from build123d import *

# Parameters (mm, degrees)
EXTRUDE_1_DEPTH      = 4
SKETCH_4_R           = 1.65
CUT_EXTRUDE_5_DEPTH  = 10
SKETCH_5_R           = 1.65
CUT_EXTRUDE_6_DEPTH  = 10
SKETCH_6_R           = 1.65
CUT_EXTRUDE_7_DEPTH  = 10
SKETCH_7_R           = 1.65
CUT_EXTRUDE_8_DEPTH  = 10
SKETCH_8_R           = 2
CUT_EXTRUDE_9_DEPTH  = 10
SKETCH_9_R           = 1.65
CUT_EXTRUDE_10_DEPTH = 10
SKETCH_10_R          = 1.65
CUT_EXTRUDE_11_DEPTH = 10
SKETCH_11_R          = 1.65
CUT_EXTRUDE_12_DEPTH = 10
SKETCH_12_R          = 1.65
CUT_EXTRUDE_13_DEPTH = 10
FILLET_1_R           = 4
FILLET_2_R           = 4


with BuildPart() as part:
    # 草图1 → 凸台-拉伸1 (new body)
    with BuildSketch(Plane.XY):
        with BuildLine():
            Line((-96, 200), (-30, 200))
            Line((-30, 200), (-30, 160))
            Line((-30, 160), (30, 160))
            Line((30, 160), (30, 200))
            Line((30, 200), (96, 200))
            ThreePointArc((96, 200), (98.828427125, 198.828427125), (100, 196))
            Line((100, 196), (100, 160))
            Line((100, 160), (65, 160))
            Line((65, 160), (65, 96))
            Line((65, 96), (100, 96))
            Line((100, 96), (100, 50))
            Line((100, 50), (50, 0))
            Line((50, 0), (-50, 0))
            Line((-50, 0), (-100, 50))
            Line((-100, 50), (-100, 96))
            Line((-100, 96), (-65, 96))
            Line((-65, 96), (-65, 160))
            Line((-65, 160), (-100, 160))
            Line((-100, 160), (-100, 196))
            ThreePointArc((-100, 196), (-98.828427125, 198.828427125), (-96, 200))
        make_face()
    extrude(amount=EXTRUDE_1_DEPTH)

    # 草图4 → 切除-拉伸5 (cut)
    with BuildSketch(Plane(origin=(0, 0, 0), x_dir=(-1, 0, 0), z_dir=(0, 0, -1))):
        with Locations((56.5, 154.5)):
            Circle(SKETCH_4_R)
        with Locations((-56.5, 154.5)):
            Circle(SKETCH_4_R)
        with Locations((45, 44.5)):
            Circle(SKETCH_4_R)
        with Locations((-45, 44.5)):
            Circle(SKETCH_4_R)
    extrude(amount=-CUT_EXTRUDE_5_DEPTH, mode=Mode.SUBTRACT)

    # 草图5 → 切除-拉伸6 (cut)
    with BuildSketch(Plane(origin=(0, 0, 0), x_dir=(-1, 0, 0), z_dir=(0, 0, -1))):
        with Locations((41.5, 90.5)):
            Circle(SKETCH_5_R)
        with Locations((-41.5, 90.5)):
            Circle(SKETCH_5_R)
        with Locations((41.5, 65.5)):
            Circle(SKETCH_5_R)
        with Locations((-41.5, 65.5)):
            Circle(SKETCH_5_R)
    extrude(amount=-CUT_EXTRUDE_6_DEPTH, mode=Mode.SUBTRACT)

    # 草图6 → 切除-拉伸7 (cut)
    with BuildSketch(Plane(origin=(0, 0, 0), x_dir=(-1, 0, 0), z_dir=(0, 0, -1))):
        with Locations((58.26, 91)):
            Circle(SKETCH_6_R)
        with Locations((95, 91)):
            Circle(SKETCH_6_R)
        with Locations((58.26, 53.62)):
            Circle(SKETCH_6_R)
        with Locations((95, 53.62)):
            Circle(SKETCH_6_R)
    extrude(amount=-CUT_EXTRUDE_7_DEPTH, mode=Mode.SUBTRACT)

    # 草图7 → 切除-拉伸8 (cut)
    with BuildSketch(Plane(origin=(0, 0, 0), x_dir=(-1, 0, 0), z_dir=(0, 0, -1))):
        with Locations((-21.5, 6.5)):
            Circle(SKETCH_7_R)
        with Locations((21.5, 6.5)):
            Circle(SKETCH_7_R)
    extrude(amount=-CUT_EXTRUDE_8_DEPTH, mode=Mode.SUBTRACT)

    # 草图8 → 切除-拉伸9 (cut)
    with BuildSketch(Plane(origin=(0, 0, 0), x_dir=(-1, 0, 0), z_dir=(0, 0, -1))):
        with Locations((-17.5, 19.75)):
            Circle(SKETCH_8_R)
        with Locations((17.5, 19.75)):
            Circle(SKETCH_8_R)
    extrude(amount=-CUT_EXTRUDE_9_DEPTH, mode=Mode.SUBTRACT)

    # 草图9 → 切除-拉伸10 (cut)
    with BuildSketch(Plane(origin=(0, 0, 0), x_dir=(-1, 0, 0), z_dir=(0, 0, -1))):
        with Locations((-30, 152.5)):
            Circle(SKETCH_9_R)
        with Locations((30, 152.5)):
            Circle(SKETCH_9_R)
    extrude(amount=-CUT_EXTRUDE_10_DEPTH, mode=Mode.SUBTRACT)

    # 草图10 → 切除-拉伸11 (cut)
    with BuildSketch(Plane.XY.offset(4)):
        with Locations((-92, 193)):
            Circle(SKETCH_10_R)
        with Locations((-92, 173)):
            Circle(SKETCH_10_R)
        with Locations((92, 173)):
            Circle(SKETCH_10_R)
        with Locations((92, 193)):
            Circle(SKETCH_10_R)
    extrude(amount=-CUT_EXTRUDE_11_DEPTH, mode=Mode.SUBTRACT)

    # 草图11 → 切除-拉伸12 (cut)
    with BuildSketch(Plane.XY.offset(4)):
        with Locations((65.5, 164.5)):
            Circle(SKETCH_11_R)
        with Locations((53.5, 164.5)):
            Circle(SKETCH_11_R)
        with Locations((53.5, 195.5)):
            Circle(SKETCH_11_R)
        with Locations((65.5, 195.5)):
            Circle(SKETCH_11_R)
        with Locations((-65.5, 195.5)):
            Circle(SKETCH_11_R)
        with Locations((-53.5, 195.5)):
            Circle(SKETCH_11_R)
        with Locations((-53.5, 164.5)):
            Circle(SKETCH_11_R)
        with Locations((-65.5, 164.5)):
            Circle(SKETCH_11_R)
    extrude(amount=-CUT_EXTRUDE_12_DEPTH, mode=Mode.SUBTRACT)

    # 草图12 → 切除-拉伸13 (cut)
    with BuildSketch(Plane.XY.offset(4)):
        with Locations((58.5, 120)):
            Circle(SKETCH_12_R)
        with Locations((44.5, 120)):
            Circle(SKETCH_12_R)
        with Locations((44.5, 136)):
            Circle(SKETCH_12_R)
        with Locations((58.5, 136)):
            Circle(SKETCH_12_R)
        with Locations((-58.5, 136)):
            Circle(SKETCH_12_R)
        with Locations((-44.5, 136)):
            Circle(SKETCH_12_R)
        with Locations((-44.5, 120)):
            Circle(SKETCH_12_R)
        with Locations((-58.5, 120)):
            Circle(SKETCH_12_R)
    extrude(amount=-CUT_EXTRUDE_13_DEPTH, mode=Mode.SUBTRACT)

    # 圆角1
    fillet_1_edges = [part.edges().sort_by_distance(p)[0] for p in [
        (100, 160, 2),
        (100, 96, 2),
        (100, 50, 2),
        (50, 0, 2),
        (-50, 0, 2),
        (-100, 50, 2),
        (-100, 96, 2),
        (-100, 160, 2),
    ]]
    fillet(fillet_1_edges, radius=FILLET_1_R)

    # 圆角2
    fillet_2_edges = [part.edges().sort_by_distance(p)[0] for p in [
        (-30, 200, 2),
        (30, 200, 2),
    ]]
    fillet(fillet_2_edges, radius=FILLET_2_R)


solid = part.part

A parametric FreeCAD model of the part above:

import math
import FreeCAD as App
import Part
import Sketcher
from FreeCAD import Vector


def edges_at(feature, points):
    """Names of the edges that pass closest to the given points."""
    edges = feature.Shape.Edges
    near = lambda p: min(range(len(edges)), key=lambda i: edges[i].distToShape(Part.Vertex(*p))[0])
    return sorted({f"Edge{near(p) + 1}" for p in points})

doc = App.newDocument("Part")
body = doc.addObject("PartDesign::Body", "Body")

# Sketch on XY plane
sketch1 = doc.addObject("Sketcher::SketchObject", "Sketch")
body.addObject(sketch1)
sketch1.AttachmentSupport = (doc.XY_Plane, [""])
sketch1.MapMode = "FlatFace"
sketch1.addGeometry([
    Part.LineSegment(Vector(-30, 200, 0), Vector(-96, 200, 0)),  # 0
    Part.ArcOfCircle(Part.Circle(Vector(-96, 196, 0), Vector(0, 0, 1), 4), math.radians(90), math.radians(180)),  # 1
    Part.LineSegment(Vector(-100, 196, 0), Vector(-100, 160, 0)),  # 2
    Part.LineSegment(Vector(-100, 160, 0), Vector(-65, 160, 0)),  # 3
    Part.LineSegment(Vector(-65, 160, 0), Vector(-65, 96, 0)),  # 4
    Part.LineSegment(Vector(-65, 96, 0), Vector(-100, 96, 0)),  # 5
    Part.LineSegment(Vector(-100, 96, 0), Vector(-100, 50, 0)),  # 6
    Part.LineSegment(Vector(-100, 50, 0), Vector(-50, 0, 0)),  # 7
    Part.LineSegment(Vector(-50, 0, 0), Vector(50, 0, 0)),  # 8
    Part.LineSegment(Vector(50, 0, 0), Vector(100, 50, 0)),  # 9
    Part.LineSegment(Vector(100, 50, 0), Vector(100, 96, 0)),  # 10
    Part.LineSegment(Vector(100, 96, 0), Vector(65, 96, 0)),  # 11
    Part.LineSegment(Vector(65, 96, 0), Vector(65, 160, 0)),  # 12
    Part.LineSegment(Vector(65, 160, 0), Vector(100, 160, 0)),  # 13
    Part.LineSegment(Vector(100, 160, 0), Vector(100, 196, 0)),  # 14
    Part.ArcOfCircle(Part.Circle(Vector(96, 196, 0), Vector(0, 0, 1), 4), math.radians(0), math.radians(90)),  # 15
    Part.LineSegment(Vector(96, 200, 0), Vector(30, 200, 0)),  # 16
    Part.LineSegment(Vector(30, 200, 0), Vector(30, 160, 0)),  # 17
    Part.LineSegment(Vector(30, 160, 0), Vector(-30, 160, 0)),  # 18
    Part.LineSegment(Vector(-30, 160, 0), Vector(-30, 200, 0)),  # 19
], False)
sketch1.addConstraint([
    Sketcher.Constraint("Tangent", 0, 2, 1, 1),
    Sketcher.Constraint("Tangent", 1, 2, 2, 1),
    Sketcher.Constraint("Coincident", 2, 2, 3, 1),
    Sketcher.Constraint("Coincident", 3, 2, 4, 1),
    Sketcher.Constraint("Coincident", 4, 2, 5, 1),
    Sketcher.Constraint("Coincident", 5, 2, 6, 1),
    Sketcher.Constraint("Coincident", 6, 2, 7, 1),
    Sketcher.Constraint("Coincident", 7, 2, 8, 1),
    Sketcher.Constraint("Coincident", 8, 2, 9, 1),
    Sketcher.Constraint("Coincident", 9, 2, 10, 1),
    Sketcher.Constraint("Coincident", 10, 2, 11, 1),
    Sketcher.Constraint("Coincident", 11, 2, 12, 1),
    Sketcher.Constraint("Coincident", 12, 2, 13, 1),
    Sketcher.Constraint("Coincident", 13, 2, 14, 1),
    Sketcher.Constraint("Tangent", 14, 2, 15, 1),
    Sketcher.Constraint("Tangent", 15, 2, 16, 1),
    Sketcher.Constraint("Coincident", 16, 2, 17, 1),
    Sketcher.Constraint("Coincident", 17, 2, 18, 1),
    Sketcher.Constraint("Coincident", 18, 2, 19, 1),
    Sketcher.Constraint("Coincident", 19, 2, 0, 1),
    Sketcher.Constraint("Horizontal", 0),
    Sketcher.Constraint("Vertical", 2),
    Sketcher.Constraint("Horizontal", 3),
    Sketcher.Constraint("Vertical", 4),
    Sketcher.Constraint("Horizontal", 5),
    Sketcher.Constraint("Vertical", 6),
    Sketcher.Constraint("Horizontal", 8),
    Sketcher.Constraint("Vertical", 10),
    Sketcher.Constraint("Horizontal", 11),
    Sketcher.Constraint("Vertical", 12),
    Sketcher.Constraint("Horizontal", 13),
    Sketcher.Constraint("Vertical", 14),
    Sketcher.Constraint("Horizontal", 16),
    Sketcher.Constraint("Vertical", 17),
    Sketcher.Constraint("Horizontal", 18),
    Sketcher.Constraint("Vertical", 19),
    Sketcher.Constraint("Equal", 1, 15),
    Sketcher.Constraint("Symmetric", 7, 2, 8, 2, -1, 1),
    Sketcher.Constraint("Symmetric", 1, 3, 15, 3, -2),
    Sketcher.Constraint("Symmetric", 6, 2, 9, 2, -2),
    Sketcher.Constraint("Symmetric", 4, 2, 11, 2, -2),
    Sketcher.Constraint("Perpendicular", 7, 9),
    Sketcher.Constraint("Horizontal", 3, 2, 12, 2),
    Sketcher.Constraint("Horizontal", 13, 2, 17, 2),
    Sketcher.Constraint("Vertical", 2, 2, 5, 2),
    Sketcher.Constraint("Equal", 0, 16),
    Sketcher.Constraint("Radius", 1, 4.0),
    Sketcher.Constraint("DistanceX", 0, 2, 0, 1, 66.0),
    Sketcher.Constraint("DistanceX", 3, 1, 3, 2, 35.0),
    Sketcher.Constraint("DistanceX", 8, 1, 8, 2, 100.0),
    Sketcher.Constraint("DistanceX", 18, 2, 18, 1, 60.0),
    Sketcher.Constraint("DistanceY", 2, 2, 2, 1, 36.0),
    Sketcher.Constraint("DistanceY", 4, 2, 4, 1, 64.0),
    Sketcher.Constraint("DistanceY", 6, 2, 6, 1, 46.0),
])
pad1 = doc.addObject("PartDesign::Pad", "Pad")
body.addObject(pad1)
pad1.Profile = sketch1
pad1.Length = 4

# Sketch on XY plane
sketch2 = doc.addObject("Sketcher::SketchObject", "Sketch001")
body.addObject(sketch2)
sketch2.AttachmentSupport = (doc.XY_Plane, [""])
sketch2.MapMode = "FlatFace"
sketch2.addGeometry([
    Part.Circle(Vector(-56.5, 154.5, 0), Vector(0, 0, 1), 1.6),
    Part.Circle(Vector(56.5, 154.5, 0), Vector(0, 0, 1), 1.6),
    Part.Circle(Vector(-45, 44.5, 0), Vector(0, 0, 1), 1.6),
    Part.Circle(Vector(45, 44.5, 0), Vector(0, 0, 1), 1.6),
], False)
sketch2.addConstraint([
    Sketcher.Constraint("Equal", 0, 1),
    Sketcher.Constraint("Equal", 1, 2),
    Sketcher.Constraint("Equal", 2, 3),
    Sketcher.Constraint("Symmetric", 0, 3, 1, 3, -2),
    Sketcher.Constraint("Symmetric", 2, 3, 3, 3, -2),
    Sketcher.Constraint("Diameter", 0, 3.3),
    Sketcher.Constraint("DistanceX", 2, 3, -1, 1, 45.0),
    Sketcher.Constraint("DistanceX", 0, 3, 1, 3, 113.0),
    Sketcher.Constraint("DistanceY", 2, 3, 0, 3, 110.0),
    Sketcher.Constraint("DistanceY", -1, 1, 0, 3, 154.5),
])
pocket1 = doc.addObject("PartDesign::Pocket", "Pocket")
body.addObject(pocket1)
pocket1.Profile = sketch2
pocket1.Length = 10
pocket1.Reversed = True

# Sketch on XY plane
sketch3 = doc.addObject("Sketcher::SketchObject", "Sketch002")
body.addObject(sketch3)
sketch3.AttachmentSupport = (doc.XY_Plane, [""])
sketch3.MapMode = "FlatFace"
sketch3.addGeometry([
    Part.Circle(Vector(-41.5, 90.5, 0), Vector(0, 0, 1), 1.6),
    Part.Circle(Vector(41.5, 90.5, 0), Vector(0, 0, 1), 1.6),
    Part.Circle(Vector(-41.5, 65.5, 0), Vector(0, 0, 1), 1.6),
    Part.Circle(Vector(41.5, 65.5, 0), Vector(0, 0, 1), 1.6),
], False)
sketch3.addConstraint([
    Sketcher.Constraint("Equal", 0, 1),
    Sketcher.Constraint("Equal", 1, 2),
    Sketcher.Constraint("Equal", 2, 3),
    Sketcher.Constraint("Symmetric", 0, 3, 1, 3, -2),
    Sketcher.Constraint("Symmetric", 2, 3, 3, 3, -2),
    Sketcher.Constraint("Vertical", 0, 3, 2, 3),
    Sketcher.Constraint("Diameter", 0, 3.3),
    Sketcher.Constraint("DistanceX", 0, 3, 1, 3, 83.0),
    Sketcher.Constraint("DistanceY", 2, 3, 0, 3, 25.0),
    Sketcher.Constraint("DistanceY", -1, 1, 0, 3, 90.5),
])
pocket2 = doc.addObject("PartDesign::Pocket", "Pocket001")
body.addObject(pocket2)
pocket2.Profile = sketch3
pocket2.Length = 10
pocket2.Reversed = True

# Sketch on XY plane
sketch4 = doc.addObject("Sketcher::SketchObject", "Sketch003")
body.addObject(sketch4)
sketch4.AttachmentSupport = (doc.XY_Plane, [""])
sketch4.MapMode = "FlatFace"
sketch4.addGeometry([
    Part.Circle(Vector(-58.3, 91, 0), Vector(0, 0, 1), 1.6),
    Part.Circle(Vector(-95, 91, 0), Vector(0, 0, 1), 1.6),
    Part.Circle(Vector(-58.3, 53.6, 0), Vector(0, 0, 1), 1.6),
    Part.Circle(Vector(-95, 53.6, 0), Vector(0, 0, 1), 1.6),
], False)
sketch4.addConstraint([
    Sketcher.Constraint("Equal", 0, 1),
    Sketcher.Constraint("Equal", 1, 2),
    Sketcher.Constraint("Equal", 2, 3),
    Sketcher.Constraint("Horizontal", 0, 3, 1, 3),
    Sketcher.Constraint("Horizontal", 2, 3, 3, 3),
    Sketcher.Constraint("Vertical", 0, 3, 2, 3),
    Sketcher.Constraint("Vertical", 1, 3, 3, 3),
    Sketcher.Constraint("Diameter", 0, 3.3),
    Sketcher.Constraint("DistanceY", -1, 1, 0, 3, 91.0),
    Sketcher.Constraint("DistanceX", 1, 3, -1, 1, 95.0),
    Sketcher.Constraint("DistanceX", 0, 3, -1, 1, 58.26),
    Sketcher.Constraint("DistanceY", -1, 1, 2, 3, 53.62),
])
pocket3 = doc.addObject("PartDesign::Pocket", "Pocket002")
body.addObject(pocket3)
pocket3.Profile = sketch4
pocket3.Length = 10
pocket3.Reversed = True

# Sketch on XY plane
sketch5 = doc.addObject("Sketcher::SketchObject", "Sketch004")
body.addObject(sketch5)
sketch5.AttachmentSupport = (doc.XY_Plane, [""])
sketch5.MapMode = "FlatFace"
sketch5.addGeometry([
    Part.Circle(Vector(21.5, 6.5, 0), Vector(0, 0, 1), 1.6),
    Part.Circle(Vector(-21.5, 6.5, 0), Vector(0, 0, 1), 1.6),
], False)
sketch5.addConstraint([
    Sketcher.Constraint("Equal", 0, 1),
    Sketcher.Constraint("Symmetric", 0, 3, 1, 3, -2),
    Sketcher.Constraint("Diameter", 0, 3.3),
    Sketcher.Constraint("DistanceX", 1, 3, 0, 3, 43.0),
    Sketcher.Constraint("DistanceY", -1, 1, 0, 3, 6.5),
])
pocket4 = doc.addObject("PartDesign::Pocket", "Pocket003")
body.addObject(pocket4)
pocket4.Profile = sketch5
pocket4.Length = 10
pocket4.Reversed = True

# Sketch on XY plane
sketch6 = doc.addObject("Sketcher::SketchObject", "Sketch005")
body.addObject(sketch6)
sketch6.AttachmentSupport = (doc.XY_Plane, [""])
sketch6.MapMode = "FlatFace"
sketch6.addGeometry([
    Part.Circle(Vector(17.5, 19.8, 0), Vector(0, 0, 1), 2),
    Part.Circle(Vector(-17.5, 19.8, 0), Vector(0, 0, 1), 2),
], False)
sketch6.addConstraint([
    Sketcher.Constraint("Equal", 0, 1),
    Sketcher.Constraint("Symmetric", 0, 3, 1, 3, -2),
    Sketcher.Constraint("Diameter", 0, 4.0),
    Sketcher.Constraint("DistanceX", 1, 3, 0, 3, 35.0),
    Sketcher.Constraint("DistanceY", -1, 1, 0, 3, 19.75),
])
pocket5 = doc.addObject("PartDesign::Pocket", "Pocket004")
body.addObject(pocket5)
pocket5.Profile = sketch6
pocket5.Length = 10
pocket5.Reversed = True

# Sketch on XY plane
sketch7 = doc.addObject("Sketcher::SketchObject", "Sketch006")
body.addObject(sketch7)
sketch7.AttachmentSupport = (doc.XY_Plane, [""])
sketch7.MapMode = "FlatFace"
sketch7.addGeometry([
    Part.Circle(Vector(30, 152.5, 0), Vector(0, 0, 1), 1.6),
    Part.Circle(Vector(-30, 152.5, 0), Vector(0, 0, 1), 1.6),
], False)
sketch7.addConstraint([
    Sketcher.Constraint("Equal", 0, 1),
    Sketcher.Constraint("Symmetric", 0, 3, 1, 3, -2),
    Sketcher.Constraint("Diameter", 0, 3.3),
    Sketcher.Constraint("DistanceX", -1, 1, 0, 3, 30.0),
    Sketcher.Constraint("DistanceY", -1, 1, 0, 3, 152.5),
])
pocket6 = doc.addObject("PartDesign::Pocket", "Pocket005")
body.addObject(pocket6)
pocket6.Profile = sketch7
pocket6.Length = 10
pocket6.Reversed = True

# Sketch on XY plane
sketch8 = doc.addObject("Sketcher::SketchObject", "Sketch007")
body.addObject(sketch8)
sketch8.AttachmentSupport = (doc.XY_Plane, [""])
sketch8.MapMode = "FlatFace"
sketch8.AttachmentOffset = App.Placement(Vector(0, 0, 4), App.Rotation())
sketch8.addGeometry([
    Part.Circle(Vector(-92, 193, 0), Vector(0, 0, 1), 1.6),
    Part.Circle(Vector(-92, 173, 0), Vector(0, 0, 1), 1.6),
    Part.Circle(Vector(92, 173, 0), Vector(0, 0, 1), 1.6),
    Part.Circle(Vector(92, 193, 0), Vector(0, 0, 1), 1.6),
], False)
sketch8.addConstraint([
    Sketcher.Constraint("Equal", 0, 1),
    Sketcher.Constraint("Equal", 1, 2),
    Sketcher.Constraint("Equal", 2, 3),
    Sketcher.Constraint("Symmetric", 1, 3, 2, 3, -2),
    Sketcher.Constraint("Symmetric", 0, 3, 3, 3, -2),
    Sketcher.Constraint("Vertical", 0, 3, 1, 3),
    Sketcher.Constraint("Diameter", 0, 3.3),
    Sketcher.Constraint("DistanceX", 0, 3, -1, 1, 92.0),
    Sketcher.Constraint("DistanceY", -1, 1, 0, 3, 193.0),
    Sketcher.Constraint("DistanceY", -1, 1, 1, 3, 173.0),
])
pocket7 = doc.addObject("PartDesign::Pocket", "Pocket006")
body.addObject(pocket7)
pocket7.Profile = sketch8
pocket7.Length = 10

# Sketch on XY plane
sketch9 = doc.addObject("Sketcher::SketchObject", "Sketch008")
body.addObject(sketch9)
sketch9.AttachmentSupport = (doc.XY_Plane, [""])
sketch9.MapMode = "FlatFace"
sketch9.AttachmentOffset = App.Placement(Vector(0, 0, 4), App.Rotation())
sketch9.addGeometry([
    Part.Circle(Vector(65.5, 164.5, 0), Vector(0, 0, 1), 1.6),  # 0
    Part.Circle(Vector(53.5, 164.5, 0), Vector(0, 0, 1), 1.6),  # 1
    Part.Circle(Vector(53.5, 195.5, 0), Vector(0, 0, 1), 1.6),  # 2
    Part.Circle(Vector(65.5, 195.5, 0), Vector(0, 0, 1), 1.6),  # 3
    Part.Circle(Vector(-65.5, 195.5, 0), Vector(0, 0, 1), 1.6),  # 4
    Part.Circle(Vector(-53.5, 195.5, 0), Vector(0, 0, 1), 1.6),  # 5
    Part.Circle(Vector(-53.5, 164.5, 0), Vector(0, 0, 1), 1.6),  # 6
    Part.Circle(Vector(-65.5, 164.5, 0), Vector(0, 0, 1), 1.6),  # 7
], False)
sketch9.addConstraint([
    Sketcher.Constraint("Equal", 0, 1),
    Sketcher.Constraint("Equal", 1, 2),
    Sketcher.Constraint("Equal", 2, 3),
    Sketcher.Constraint("Equal", 3, 4),
    Sketcher.Constraint("Equal", 4, 5),
    Sketcher.Constraint("Equal", 5, 6),
    Sketcher.Constraint("Equal", 6, 7),
    Sketcher.Constraint("Symmetric", 3, 3, 4, 3, -2),
    Sketcher.Constraint("Symmetric", 2, 3, 5, 3, -2),
    Sketcher.Constraint("Symmetric", 1, 3, 6, 3, -2),
    Sketcher.Constraint("Symmetric", 0, 3, 7, 3, -2),
    Sketcher.Constraint("Horizontal", 0, 3, 1, 3),
    Sketcher.Constraint("Horizontal", 2, 3, 3, 3),
    Sketcher.Constraint("Vertical", 1, 3, 2, 3),
    Sketcher.Constraint("Vertical", 0, 3, 3, 3),
    Sketcher.Constraint("Diameter", 0, 3.3),
    Sketcher.Constraint("DistanceX", 1, 3, 0, 3, 12.0),
    Sketcher.Constraint("DistanceY", 1, 3, 2, 3, 31.0),
    Sketcher.Constraint("DistanceX", 4, 3, 2, 3, 119.0),
    Sketcher.Constraint("DistanceY", -1, 1, 0, 3, 164.5),
])
pocket8 = doc.addObject("PartDesign::Pocket", "Pocket007")
body.addObject(pocket8)
pocket8.Profile = sketch9
pocket8.Length = 10

# Sketch on XY plane
sketch10 = doc.addObject("Sketcher::SketchObject", "Sketch009")
body.addObject(sketch10)
sketch10.AttachmentSupport = (doc.XY_Plane, [""])
sketch10.MapMode = "FlatFace"
sketch10.AttachmentOffset = App.Placement(Vector(0, 0, 4), App.Rotation())
sketch10.addGeometry([
    Part.Circle(Vector(58.5, 120, 0), Vector(0, 0, 1), 1.6),  # 0
    Part.Circle(Vector(44.5, 120, 0), Vector(0, 0, 1), 1.6),  # 1
    Part.Circle(Vector(44.5, 136, 0), Vector(0, 0, 1), 1.6),  # 2
    Part.Circle(Vector(58.5, 136, 0), Vector(0, 0, 1), 1.6),  # 3
    Part.Circle(Vector(-58.5, 136, 0), Vector(0, 0, 1), 1.6),  # 4
    Part.Circle(Vector(-44.5, 136, 0), Vector(0, 0, 1), 1.6),  # 5
    Part.Circle(Vector(-44.5, 120, 0), Vector(0, 0, 1), 1.6),  # 6
    Part.Circle(Vector(-58.5, 120, 0), Vector(0, 0, 1), 1.6),  # 7
], False)
sketch10.addConstraint([
    Sketcher.Constraint("Equal", 0, 1),
    Sketcher.Constraint("Equal", 1, 2),
    Sketcher.Constraint("Equal", 2, 3),
    Sketcher.Constraint("Equal", 3, 4),
    Sketcher.Constraint("Equal", 4, 5),
    Sketcher.Constraint("Equal", 5, 6),
    Sketcher.Constraint("Equal", 6, 7),
    Sketcher.Constraint("Symmetric", 3, 3, 4, 3, -2),
    Sketcher.Constraint("Symmetric", 2, 3, 5, 3, -2),
    Sketcher.Constraint("Symmetric", 1, 3, 6, 3, -2),
    Sketcher.Constraint("Symmetric", 0, 3, 7, 3, -2),
    Sketcher.Constraint("Horizontal", 0, 3, 1, 3),
    Sketcher.Constraint("Horizontal", 2, 3, 3, 3),
    Sketcher.Constraint("Vertical", 1, 3, 2, 3),
    Sketcher.Constraint("Vertical", 0, 3, 3, 3),
    Sketcher.Constraint("Diameter", 0, 3.3),
    Sketcher.Constraint("DistanceY", -1, 1, 0, 3, 120.0),
    Sketcher.Constraint("DistanceY", -1, 1, 2, 3, 136.0),
    Sketcher.Constraint("DistanceX", 1, 3, 0, 3, 14.0),
    Sketcher.Constraint("DistanceX", 4, 3, 2, 3, 103.0),
])
pocket9 = doc.addObject("PartDesign::Pocket", "Pocket008")
body.addObject(pocket9)
pocket9.Profile = sketch10
pocket9.Length = 10
doc.recompute()

fillet = doc.addObject("PartDesign::Fillet", "Fillet")
body.addObject(fillet)
fillet.Base = (pocket9, edges_at(pocket9, [
    (100, 160, 2),
    (100, 96, 2),
    (100, 50, 2),
    (50, 0, 2),
    (-50, 0, 2),
    (-100, 50, 2),
    (-100, 96, 2),
    (-100, 160, 2),
]))
fillet.Radius = 4
doc.recompute()

fillet2 = doc.addObject("PartDesign::Fillet", "Fillet001")
body.addObject(fillet2)
fillet2.Base = (fillet, edges_at(fillet, [(-30, 200, 2), (30, 200, 2)]))
fillet2.Radius = 4

doc.recompute()
